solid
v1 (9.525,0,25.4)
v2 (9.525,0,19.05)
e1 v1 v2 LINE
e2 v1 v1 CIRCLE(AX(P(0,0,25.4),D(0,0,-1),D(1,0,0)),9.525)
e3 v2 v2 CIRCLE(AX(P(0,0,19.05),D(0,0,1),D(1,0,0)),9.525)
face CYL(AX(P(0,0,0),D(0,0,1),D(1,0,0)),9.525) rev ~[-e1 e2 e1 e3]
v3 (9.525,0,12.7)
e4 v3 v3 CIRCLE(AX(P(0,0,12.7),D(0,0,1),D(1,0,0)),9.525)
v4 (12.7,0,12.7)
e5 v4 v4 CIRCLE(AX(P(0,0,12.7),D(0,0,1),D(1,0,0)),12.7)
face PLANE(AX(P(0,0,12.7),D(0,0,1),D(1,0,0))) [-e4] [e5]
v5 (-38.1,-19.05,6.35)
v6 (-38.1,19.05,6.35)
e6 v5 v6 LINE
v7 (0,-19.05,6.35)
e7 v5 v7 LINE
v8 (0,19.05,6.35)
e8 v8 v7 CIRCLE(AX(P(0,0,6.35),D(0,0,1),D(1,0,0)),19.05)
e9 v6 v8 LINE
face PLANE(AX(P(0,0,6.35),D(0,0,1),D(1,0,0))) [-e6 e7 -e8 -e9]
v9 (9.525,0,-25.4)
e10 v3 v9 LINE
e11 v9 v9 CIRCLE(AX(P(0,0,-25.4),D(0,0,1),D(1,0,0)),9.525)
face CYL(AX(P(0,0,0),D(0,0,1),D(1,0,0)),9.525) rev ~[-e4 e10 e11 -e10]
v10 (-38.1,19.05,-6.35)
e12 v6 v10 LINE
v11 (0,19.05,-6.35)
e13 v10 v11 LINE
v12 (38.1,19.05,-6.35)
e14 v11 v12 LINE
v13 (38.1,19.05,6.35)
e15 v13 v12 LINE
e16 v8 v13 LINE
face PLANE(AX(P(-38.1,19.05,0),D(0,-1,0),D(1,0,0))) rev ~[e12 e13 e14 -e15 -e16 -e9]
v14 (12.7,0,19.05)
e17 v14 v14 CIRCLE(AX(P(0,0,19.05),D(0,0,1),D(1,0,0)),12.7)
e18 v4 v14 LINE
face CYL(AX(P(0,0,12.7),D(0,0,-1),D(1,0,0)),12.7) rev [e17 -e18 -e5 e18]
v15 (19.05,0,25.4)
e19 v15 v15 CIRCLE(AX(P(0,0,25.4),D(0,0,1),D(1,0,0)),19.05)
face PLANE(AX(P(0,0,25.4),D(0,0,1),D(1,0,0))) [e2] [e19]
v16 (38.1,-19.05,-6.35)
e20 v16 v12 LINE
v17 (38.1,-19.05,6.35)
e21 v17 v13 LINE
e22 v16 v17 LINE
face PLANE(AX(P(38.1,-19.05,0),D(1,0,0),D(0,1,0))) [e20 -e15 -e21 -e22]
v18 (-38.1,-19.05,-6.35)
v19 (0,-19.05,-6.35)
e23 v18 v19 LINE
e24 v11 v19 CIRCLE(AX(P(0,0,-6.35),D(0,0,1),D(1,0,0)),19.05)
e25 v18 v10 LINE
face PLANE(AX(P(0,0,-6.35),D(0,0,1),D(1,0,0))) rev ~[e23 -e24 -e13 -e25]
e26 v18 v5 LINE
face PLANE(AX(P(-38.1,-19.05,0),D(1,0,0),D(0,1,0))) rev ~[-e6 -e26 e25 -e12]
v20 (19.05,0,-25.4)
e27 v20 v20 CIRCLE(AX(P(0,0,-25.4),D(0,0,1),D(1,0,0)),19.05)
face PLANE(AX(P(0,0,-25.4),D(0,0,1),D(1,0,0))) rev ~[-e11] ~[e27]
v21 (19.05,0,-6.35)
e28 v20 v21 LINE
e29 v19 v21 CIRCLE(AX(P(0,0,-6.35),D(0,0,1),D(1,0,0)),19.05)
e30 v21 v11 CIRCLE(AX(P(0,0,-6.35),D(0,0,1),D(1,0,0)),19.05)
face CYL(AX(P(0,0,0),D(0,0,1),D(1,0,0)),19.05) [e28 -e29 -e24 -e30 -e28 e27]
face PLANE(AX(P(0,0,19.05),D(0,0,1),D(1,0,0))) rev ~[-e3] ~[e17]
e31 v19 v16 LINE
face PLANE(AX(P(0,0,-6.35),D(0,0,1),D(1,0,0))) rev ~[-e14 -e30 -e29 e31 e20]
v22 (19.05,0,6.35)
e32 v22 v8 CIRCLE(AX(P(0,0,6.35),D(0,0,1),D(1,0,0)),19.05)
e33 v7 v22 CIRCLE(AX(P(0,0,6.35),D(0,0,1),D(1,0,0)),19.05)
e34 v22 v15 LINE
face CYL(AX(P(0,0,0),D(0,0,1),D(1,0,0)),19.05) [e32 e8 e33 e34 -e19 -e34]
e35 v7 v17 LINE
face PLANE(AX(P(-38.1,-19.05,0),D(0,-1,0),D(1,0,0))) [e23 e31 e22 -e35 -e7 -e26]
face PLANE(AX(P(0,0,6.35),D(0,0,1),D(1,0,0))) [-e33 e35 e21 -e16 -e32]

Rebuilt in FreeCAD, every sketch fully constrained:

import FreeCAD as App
import Part
import Sketcher
Q = App.Units.Quantity


def add_polygon(sketch, points):
    """Adds a closed chain of lines whose ends are joined by coincident constraints."""
    first, n = sketch.GeometryCount, len(points)
    for a, b in zip(points, points[1:] + points[:1]):
        sketch.addGeometry(Part.LineSegment(App.Vector(*a, 0), App.Vector(*b, 0)), False)
    for i in range(n):
        sketch.addConstraint(Sketcher.Constraint("Coincident", first + i, 2, first + (i + 1) % n, 1))

doc = App.newDocument("Part")
body = doc.addObject("PartDesign::Body", "Body")

sketch1 = doc.addObject("Sketcher::SketchObject", "Sketch")
body.addObject(sketch1)
sketch1.AttachmentSupport = (doc.XY_Plane, [""])
sketch1.MapMode = "FlatFace"
add_polygon(sketch1, [(-38.1, 19.05), (-38.1, -19.05), (38.1, -19.05), (38.1, 19.05)])
sketch1.addConstraint([
    Sketcher.Constraint("Vertical", 0),
    Sketcher.Constraint("Horizontal", 1),
    Sketcher.Constraint("Vertical", 2),
    Sketcher.Constraint("Horizontal", 3),
    Sketcher.Constraint("Symmetric", 0, 2, 2, 2, -1, 1),
    Sketcher.Constraint("DistanceX", 1, 1, 1, 2, Q("3 in")),
    Sketcher.Constraint("DistanceY", 0, 2, 0, 1, Q("1.5 in")),
])
pad1 = doc.addObject("PartDesign::Pad", "Pad")
body.addObject(pad1)
pad1.Profile = sketch1
pad1.Length = Q("0.5 in")
pad1.Midplane = True

sketch2 = doc.addObject("Sketcher::SketchObject", "Sketch001")
body.addObject(sketch2)
sketch2.AttachmentSupport = (doc.XY_Plane, [""])
sketch2.MapMode = "FlatFace"
sketch2.addGeometry(Part.Circle(App.Vector(0, 0, 0), App.Vector(0, 0, 1), 19.05), False)
sketch2.addConstraint([
    Sketcher.Constraint("Coincident", 0, 3, -1, 1),
    Sketcher.Constraint("Diameter", 0, Q("1.5 in")),
])
pad2 = doc.addObject("PartDesign::Pad", "Pad001")
body.addObject(pad2)
pad2.Profile = sketch2
pad2.Length = Q("2 in")
pad2.Midplane = True

sketch3 = doc.addObject("Sketcher::SketchObject", "Sketch002")
body.addObject(sketch3)
sketch3.AttachmentSupport = (doc.XY_Plane, [""])
sketch3.MapMode = "FlatFace"
sketch3.addGeometry(Part.Circle(App.Vector(0, 0, 0), App.Vector(0, 0, 1), 9.525), False)
sketch3.addConstraint([
    Sketcher.Constraint("Coincident", 0, 3, -1, 1),
    Sketcher.Constraint("Diameter", 0, Q("0.75 in")),
])
pocket1 = doc.addObject("PartDesign::Pocket", "Pocket")
body.addObject(pocket1)
pocket1.Profile = sketch3
pocket1.Type = "ThroughAll"
pocket1.Midplane = True

sketch4 = doc.addObject("Sketcher::SketchObject", "Sketch003")
body.addObject(sketch4)
sketch4.AttachmentSupport = (doc.XY_Plane, [""])
sketch4.MapMode = "FlatFace"
sketch4.AttachmentOffset = App.Placement(App.Vector(0, 0, 0.5 * 25.4), App.Rotation())
sketch4.addGeometry(Part.Circle(App.Vector(0, 0, 0), App.Vector(0, 0, 1), 12.7), False)
sketch4.addConstraint([
    Sketcher.Constraint("Coincident", 0, 3, -1, 1),
    Sketcher.Constraint("Diameter", 0, Q("1 in")),
])
pocket2 = doc.addObject("PartDesign::Pocket", "Pocket001")
body.addObject(pocket2)
pocket2.Profile = sketch4
pocket2.Length = Q("0.25 in")
pocket2.Reversed = True

doc.recompute()
